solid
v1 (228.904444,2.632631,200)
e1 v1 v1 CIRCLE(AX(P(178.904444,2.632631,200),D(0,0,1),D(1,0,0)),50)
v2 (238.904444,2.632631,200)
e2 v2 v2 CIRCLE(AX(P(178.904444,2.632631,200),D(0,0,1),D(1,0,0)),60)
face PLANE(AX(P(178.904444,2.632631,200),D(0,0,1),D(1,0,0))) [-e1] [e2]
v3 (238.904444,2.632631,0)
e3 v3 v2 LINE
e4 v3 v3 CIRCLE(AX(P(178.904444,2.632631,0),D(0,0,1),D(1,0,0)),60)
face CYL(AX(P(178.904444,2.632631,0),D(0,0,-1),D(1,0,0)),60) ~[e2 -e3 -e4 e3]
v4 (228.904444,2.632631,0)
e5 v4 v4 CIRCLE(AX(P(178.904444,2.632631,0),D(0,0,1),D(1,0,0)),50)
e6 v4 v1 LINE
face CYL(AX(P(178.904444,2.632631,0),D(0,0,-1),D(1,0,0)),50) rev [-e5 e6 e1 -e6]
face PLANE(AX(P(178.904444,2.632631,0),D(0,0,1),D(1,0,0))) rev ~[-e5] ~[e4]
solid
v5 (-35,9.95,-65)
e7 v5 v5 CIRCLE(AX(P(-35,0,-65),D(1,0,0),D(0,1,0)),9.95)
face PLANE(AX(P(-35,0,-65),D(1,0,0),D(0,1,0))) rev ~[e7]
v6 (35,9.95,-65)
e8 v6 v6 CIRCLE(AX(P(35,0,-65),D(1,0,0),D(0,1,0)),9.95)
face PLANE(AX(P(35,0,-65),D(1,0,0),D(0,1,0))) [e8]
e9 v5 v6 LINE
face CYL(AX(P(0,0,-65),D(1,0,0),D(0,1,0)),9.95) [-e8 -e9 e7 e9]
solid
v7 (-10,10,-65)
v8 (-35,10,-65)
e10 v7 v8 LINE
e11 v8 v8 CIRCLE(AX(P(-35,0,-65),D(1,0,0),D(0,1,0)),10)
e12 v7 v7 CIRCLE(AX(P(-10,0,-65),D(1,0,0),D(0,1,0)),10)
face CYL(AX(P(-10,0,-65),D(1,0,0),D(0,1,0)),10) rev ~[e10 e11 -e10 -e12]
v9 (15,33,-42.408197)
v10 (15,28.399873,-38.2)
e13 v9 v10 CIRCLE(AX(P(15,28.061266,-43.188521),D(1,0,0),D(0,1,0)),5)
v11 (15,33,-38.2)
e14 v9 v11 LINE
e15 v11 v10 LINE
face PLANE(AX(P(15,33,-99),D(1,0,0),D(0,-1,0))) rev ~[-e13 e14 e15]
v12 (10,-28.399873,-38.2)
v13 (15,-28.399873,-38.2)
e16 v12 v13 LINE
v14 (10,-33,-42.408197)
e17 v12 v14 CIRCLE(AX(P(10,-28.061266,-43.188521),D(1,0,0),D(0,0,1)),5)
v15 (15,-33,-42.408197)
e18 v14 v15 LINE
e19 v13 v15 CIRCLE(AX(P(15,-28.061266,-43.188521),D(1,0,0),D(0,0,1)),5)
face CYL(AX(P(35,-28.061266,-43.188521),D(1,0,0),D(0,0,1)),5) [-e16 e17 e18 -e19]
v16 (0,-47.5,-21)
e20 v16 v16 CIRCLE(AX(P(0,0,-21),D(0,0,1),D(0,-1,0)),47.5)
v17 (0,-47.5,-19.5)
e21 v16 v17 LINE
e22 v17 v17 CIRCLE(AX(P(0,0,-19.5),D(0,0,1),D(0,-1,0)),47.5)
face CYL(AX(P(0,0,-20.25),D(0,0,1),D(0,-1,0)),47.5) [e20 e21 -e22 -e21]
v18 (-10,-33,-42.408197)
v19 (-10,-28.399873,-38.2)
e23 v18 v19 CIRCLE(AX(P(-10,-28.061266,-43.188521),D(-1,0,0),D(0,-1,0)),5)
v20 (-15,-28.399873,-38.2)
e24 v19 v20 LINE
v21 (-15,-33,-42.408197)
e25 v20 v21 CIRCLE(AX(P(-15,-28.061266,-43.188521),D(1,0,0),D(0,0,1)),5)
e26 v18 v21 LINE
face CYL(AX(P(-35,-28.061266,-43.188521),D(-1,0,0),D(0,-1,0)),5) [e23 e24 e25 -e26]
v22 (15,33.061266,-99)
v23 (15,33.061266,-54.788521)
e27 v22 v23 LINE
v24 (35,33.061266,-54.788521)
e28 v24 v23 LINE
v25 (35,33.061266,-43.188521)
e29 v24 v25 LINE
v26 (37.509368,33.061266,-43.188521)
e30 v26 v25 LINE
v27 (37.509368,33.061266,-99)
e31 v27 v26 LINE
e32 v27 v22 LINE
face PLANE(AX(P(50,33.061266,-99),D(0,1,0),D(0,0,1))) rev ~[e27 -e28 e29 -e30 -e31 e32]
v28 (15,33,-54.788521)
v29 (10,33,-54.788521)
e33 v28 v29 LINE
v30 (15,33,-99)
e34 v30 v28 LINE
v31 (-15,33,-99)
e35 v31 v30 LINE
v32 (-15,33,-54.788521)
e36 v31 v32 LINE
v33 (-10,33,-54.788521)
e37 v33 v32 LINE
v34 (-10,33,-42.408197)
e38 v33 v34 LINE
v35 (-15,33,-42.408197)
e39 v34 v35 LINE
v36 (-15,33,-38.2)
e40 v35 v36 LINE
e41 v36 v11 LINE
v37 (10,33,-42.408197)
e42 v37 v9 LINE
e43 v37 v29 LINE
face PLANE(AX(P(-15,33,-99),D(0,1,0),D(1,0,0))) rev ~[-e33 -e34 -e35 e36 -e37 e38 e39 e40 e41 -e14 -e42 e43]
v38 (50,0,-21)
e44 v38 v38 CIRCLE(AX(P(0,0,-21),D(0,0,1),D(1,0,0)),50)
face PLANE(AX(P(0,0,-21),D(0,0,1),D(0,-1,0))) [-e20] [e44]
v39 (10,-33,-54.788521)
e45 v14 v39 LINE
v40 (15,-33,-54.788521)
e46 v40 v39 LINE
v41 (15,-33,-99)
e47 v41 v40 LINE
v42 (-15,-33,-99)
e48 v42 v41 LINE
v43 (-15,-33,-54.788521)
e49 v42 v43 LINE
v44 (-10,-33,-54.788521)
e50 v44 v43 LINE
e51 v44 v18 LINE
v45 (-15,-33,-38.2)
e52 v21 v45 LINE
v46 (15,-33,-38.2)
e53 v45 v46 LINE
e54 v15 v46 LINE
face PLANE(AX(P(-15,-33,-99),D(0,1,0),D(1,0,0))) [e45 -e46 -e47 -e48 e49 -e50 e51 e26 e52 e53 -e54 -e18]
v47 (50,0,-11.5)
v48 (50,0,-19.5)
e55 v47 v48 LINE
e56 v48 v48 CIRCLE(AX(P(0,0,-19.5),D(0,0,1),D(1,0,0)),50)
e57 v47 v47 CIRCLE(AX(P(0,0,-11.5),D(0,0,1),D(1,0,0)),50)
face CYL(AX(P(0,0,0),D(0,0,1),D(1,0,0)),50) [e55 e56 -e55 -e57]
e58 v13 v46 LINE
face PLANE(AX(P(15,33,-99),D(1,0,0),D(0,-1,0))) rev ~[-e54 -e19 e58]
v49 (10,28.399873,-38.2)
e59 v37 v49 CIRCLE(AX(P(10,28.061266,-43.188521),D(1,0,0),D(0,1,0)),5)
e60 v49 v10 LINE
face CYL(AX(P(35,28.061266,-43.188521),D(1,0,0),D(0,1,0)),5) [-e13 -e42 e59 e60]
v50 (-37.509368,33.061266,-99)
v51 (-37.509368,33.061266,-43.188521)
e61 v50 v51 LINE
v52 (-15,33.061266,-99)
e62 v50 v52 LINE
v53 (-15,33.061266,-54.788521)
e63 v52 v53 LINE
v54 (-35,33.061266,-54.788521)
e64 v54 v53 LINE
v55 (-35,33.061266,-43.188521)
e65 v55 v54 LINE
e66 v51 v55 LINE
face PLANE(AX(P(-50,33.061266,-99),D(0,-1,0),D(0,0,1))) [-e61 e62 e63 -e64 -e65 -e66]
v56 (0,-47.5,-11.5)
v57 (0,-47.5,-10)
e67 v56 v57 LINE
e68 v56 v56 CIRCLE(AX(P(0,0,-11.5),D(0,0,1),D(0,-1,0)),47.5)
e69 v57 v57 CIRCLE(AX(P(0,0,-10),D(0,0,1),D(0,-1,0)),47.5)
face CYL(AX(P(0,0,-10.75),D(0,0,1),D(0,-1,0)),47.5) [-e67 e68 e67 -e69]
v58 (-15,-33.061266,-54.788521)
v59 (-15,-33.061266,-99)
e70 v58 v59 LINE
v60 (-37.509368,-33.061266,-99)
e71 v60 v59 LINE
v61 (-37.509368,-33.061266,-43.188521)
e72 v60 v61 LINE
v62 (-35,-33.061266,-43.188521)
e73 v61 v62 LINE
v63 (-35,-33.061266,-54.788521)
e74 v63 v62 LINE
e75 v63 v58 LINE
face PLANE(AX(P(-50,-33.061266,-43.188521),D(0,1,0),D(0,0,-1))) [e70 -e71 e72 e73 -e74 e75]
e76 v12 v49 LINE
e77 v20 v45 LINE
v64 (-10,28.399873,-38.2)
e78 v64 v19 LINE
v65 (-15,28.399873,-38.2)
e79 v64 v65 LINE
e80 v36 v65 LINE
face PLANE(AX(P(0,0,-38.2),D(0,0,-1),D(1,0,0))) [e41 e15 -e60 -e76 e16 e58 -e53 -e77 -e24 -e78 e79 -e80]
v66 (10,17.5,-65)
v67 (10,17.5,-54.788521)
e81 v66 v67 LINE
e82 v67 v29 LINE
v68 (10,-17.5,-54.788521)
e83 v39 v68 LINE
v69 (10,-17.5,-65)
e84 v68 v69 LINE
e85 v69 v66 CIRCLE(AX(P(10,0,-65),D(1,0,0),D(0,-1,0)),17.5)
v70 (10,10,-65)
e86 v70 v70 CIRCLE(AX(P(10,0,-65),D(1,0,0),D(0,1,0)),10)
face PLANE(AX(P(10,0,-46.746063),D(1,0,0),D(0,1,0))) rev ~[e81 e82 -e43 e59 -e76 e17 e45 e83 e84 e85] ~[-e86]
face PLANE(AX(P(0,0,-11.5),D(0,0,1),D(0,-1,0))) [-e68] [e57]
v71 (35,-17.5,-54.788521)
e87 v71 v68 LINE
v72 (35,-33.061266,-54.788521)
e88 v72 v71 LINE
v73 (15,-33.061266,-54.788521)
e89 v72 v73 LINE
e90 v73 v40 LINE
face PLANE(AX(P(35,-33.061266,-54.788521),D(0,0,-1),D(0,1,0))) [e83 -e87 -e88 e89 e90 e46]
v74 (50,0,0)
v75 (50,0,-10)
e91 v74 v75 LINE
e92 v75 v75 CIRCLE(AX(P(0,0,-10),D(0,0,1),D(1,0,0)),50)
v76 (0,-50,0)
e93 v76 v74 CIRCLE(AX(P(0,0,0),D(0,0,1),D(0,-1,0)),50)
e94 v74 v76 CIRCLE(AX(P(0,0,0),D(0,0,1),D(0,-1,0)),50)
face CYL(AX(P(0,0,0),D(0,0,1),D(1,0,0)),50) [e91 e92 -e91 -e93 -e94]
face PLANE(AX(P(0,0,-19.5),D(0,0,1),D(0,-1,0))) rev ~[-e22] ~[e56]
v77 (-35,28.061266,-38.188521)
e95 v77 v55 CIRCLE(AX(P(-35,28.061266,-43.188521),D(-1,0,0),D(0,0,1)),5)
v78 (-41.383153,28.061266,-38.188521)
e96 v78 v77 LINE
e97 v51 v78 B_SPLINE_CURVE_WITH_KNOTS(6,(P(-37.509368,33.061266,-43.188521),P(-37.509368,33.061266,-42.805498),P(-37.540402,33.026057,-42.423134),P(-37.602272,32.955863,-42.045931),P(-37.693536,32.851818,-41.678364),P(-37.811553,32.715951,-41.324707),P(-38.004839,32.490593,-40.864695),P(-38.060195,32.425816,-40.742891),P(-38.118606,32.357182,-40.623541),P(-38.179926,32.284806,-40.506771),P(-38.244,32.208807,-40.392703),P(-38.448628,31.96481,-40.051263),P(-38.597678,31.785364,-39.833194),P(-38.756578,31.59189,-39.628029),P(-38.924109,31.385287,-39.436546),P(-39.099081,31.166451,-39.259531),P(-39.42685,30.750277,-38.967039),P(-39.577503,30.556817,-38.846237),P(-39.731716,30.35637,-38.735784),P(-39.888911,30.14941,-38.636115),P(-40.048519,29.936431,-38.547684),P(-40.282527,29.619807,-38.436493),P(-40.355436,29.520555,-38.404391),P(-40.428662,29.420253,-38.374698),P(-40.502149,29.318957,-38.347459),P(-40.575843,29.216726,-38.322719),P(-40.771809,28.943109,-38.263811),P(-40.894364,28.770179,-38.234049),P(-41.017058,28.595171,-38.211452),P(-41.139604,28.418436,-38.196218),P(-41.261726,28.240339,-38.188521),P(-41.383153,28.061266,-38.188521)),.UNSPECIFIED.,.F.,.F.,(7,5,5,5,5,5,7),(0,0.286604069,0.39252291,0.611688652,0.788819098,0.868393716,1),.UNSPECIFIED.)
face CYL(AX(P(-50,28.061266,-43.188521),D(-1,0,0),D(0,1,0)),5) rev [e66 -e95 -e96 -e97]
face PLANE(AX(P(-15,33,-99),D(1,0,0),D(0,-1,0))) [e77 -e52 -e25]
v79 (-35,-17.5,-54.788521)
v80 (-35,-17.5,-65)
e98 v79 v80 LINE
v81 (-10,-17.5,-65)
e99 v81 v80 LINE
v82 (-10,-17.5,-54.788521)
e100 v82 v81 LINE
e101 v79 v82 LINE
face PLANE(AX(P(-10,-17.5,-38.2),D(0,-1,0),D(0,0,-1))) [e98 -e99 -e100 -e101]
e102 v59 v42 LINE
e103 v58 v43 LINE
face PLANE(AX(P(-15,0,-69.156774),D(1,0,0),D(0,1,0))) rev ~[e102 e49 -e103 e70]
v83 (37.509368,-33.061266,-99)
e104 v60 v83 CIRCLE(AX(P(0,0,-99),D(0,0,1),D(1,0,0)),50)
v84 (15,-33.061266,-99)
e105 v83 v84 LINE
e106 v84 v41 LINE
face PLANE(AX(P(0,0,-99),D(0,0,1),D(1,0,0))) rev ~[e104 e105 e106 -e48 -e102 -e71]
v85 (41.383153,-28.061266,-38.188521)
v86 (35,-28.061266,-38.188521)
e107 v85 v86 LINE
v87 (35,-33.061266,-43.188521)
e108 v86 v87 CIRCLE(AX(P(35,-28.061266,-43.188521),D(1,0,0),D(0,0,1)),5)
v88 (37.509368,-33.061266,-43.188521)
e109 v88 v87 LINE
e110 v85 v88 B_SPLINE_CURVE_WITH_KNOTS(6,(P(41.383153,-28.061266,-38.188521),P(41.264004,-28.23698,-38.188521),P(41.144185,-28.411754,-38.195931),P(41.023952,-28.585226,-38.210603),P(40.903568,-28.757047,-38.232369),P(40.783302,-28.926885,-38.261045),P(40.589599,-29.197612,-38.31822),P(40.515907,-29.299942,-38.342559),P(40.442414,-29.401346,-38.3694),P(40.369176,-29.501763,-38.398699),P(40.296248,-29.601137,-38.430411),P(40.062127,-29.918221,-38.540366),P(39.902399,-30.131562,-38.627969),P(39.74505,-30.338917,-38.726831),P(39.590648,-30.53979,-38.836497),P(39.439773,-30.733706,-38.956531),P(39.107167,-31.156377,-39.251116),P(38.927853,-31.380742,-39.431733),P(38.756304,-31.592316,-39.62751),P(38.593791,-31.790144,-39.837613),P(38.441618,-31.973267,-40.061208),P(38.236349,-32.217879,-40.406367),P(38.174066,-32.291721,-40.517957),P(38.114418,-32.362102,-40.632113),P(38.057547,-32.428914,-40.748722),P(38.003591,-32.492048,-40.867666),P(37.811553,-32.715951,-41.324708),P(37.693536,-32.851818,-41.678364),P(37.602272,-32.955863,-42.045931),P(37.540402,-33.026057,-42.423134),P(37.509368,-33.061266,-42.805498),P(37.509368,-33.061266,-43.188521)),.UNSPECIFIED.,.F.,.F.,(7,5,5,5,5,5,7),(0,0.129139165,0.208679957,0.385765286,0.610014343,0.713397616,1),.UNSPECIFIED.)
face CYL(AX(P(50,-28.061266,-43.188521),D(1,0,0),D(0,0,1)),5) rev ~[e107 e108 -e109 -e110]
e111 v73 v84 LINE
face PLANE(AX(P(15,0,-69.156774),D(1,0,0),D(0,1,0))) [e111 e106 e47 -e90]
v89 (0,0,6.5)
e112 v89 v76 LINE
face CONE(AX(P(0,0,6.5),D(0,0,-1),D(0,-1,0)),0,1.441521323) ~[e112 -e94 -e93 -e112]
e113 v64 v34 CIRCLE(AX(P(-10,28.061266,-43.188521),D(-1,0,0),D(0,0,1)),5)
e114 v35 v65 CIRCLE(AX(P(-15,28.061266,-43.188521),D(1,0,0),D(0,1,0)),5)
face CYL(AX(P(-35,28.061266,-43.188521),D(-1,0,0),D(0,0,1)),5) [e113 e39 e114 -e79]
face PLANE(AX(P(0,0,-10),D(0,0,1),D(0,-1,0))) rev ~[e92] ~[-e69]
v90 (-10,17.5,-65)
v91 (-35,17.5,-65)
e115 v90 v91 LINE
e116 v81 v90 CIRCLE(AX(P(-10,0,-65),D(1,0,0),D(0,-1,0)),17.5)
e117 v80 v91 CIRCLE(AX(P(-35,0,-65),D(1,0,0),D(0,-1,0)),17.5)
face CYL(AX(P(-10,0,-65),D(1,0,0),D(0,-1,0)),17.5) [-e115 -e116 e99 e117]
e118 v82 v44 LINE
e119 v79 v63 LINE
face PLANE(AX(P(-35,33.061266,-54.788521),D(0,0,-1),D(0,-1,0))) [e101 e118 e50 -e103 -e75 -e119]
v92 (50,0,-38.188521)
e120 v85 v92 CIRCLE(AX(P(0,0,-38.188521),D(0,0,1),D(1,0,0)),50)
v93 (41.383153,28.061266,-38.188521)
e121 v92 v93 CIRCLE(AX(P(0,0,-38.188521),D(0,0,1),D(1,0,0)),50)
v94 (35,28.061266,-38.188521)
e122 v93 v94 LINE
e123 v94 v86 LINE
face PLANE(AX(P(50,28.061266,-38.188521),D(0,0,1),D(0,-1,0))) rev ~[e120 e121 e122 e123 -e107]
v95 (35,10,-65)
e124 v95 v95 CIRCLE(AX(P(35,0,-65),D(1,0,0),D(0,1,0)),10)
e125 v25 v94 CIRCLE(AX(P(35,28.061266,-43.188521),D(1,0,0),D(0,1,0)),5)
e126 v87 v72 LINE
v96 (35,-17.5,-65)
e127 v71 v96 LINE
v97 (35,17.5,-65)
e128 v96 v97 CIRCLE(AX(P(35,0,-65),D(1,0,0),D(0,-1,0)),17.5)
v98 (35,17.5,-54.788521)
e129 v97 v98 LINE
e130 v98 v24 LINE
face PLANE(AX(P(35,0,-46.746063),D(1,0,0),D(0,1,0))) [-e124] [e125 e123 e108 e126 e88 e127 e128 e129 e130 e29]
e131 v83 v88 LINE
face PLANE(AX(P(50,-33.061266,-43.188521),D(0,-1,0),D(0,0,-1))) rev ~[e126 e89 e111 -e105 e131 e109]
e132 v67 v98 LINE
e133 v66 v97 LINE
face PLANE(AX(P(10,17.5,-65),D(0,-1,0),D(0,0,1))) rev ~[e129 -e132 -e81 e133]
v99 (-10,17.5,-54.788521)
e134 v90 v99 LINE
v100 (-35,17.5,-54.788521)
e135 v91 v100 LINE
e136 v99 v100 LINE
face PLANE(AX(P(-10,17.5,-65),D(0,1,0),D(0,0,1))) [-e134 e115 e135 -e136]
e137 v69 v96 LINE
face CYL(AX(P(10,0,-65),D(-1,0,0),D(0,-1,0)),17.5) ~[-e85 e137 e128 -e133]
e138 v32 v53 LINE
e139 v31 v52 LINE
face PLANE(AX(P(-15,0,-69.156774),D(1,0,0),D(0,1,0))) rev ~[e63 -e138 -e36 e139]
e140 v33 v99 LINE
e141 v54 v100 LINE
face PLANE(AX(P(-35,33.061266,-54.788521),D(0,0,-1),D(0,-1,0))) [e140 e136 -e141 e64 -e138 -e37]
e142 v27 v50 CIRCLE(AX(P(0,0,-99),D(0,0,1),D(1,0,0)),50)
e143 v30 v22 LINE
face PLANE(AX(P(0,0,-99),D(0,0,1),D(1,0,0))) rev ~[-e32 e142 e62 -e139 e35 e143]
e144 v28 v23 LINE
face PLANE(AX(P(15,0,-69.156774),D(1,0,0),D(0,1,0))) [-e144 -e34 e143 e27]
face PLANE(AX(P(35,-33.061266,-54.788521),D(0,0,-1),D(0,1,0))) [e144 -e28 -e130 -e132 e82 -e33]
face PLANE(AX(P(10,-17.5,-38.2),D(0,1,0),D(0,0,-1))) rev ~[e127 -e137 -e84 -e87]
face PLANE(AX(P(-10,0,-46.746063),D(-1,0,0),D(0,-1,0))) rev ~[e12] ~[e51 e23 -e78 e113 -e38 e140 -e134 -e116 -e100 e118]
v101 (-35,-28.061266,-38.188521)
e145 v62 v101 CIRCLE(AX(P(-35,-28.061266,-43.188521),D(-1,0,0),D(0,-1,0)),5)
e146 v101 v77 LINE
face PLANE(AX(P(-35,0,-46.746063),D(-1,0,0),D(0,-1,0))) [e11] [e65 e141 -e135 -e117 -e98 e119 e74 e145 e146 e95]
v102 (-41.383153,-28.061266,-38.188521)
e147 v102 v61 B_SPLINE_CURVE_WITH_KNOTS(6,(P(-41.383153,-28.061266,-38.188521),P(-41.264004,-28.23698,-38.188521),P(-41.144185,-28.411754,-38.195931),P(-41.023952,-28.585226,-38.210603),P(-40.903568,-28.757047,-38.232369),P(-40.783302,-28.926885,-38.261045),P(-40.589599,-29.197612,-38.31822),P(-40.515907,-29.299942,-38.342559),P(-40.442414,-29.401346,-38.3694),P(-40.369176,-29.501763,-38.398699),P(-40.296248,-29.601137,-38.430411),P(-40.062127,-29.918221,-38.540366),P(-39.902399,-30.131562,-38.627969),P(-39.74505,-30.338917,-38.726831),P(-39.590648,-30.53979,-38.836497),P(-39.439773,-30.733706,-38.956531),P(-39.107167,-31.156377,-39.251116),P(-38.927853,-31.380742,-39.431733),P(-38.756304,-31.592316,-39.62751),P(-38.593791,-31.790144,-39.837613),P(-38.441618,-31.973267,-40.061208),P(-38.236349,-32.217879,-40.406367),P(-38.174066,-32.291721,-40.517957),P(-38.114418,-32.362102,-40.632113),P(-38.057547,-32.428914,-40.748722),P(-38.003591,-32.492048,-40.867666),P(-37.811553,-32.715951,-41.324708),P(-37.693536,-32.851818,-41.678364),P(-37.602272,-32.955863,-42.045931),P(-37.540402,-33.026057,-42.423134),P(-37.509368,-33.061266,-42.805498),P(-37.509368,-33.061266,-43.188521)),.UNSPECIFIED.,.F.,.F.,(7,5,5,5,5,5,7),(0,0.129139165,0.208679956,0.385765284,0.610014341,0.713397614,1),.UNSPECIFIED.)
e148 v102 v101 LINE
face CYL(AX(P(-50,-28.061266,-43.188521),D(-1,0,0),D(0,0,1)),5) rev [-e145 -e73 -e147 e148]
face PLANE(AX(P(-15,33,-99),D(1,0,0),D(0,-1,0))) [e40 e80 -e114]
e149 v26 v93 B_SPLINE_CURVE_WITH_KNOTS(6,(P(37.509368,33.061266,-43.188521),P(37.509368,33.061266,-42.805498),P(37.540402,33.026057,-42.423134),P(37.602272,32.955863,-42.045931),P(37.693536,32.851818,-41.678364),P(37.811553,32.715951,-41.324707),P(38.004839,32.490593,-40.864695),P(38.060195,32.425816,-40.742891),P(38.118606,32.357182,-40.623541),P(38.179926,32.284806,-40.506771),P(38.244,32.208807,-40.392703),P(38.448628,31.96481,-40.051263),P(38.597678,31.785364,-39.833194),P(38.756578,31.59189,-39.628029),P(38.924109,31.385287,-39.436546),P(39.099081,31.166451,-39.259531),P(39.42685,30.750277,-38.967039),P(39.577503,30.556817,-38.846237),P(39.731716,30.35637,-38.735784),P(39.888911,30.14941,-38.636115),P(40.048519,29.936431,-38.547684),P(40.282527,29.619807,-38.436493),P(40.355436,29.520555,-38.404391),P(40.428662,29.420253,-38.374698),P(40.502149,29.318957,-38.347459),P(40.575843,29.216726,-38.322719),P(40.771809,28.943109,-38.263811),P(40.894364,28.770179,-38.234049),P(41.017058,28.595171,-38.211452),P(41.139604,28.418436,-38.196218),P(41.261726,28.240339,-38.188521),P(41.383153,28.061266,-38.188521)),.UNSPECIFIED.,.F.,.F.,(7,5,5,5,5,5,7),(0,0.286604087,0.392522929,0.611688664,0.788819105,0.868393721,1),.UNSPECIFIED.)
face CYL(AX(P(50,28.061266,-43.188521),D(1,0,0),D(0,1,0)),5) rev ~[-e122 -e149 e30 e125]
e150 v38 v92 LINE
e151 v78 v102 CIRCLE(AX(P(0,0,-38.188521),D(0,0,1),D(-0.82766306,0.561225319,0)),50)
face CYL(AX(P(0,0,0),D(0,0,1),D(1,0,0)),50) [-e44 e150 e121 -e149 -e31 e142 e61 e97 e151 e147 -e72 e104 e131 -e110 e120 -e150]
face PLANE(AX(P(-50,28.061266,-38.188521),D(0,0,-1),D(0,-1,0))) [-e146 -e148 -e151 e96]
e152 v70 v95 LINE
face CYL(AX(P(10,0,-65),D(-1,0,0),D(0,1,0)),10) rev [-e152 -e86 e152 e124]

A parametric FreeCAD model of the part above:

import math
import FreeCAD as App
import Part
import Sketcher
from FreeCAD import Vector
Q = App.Units.Quantity


def add_polygon(sketch, points):
    """Adds a closed chain of lines whose ends are joined by coincident constraints."""
    first, n = sketch.GeometryCount, len(points)
    for a, b in zip(points, points[1:] + points[:1]):
        sketch.addGeometry(Part.LineSegment(App.Vector(*a, 0), App.Vector(*b, 0)), False)
    for i in range(n):
        sketch.addConstraint(Sketcher.Constraint("Coincident", first + i, 2, first + (i + 1) % n, 1))

doc = App.newDocument("Part")
params = doc.addObject("Spreadsheet::Sheet", "Params")
for row, (alias, value) in enumerate([
    ("sketch1_width", "50 mm"),
    ("sketch1_height", "6.5 mm"),
    ("revolution_angle", "360 deg"),
    ("sketch2_width", "30 mm"),
    ("sketch2_height", "66 mm"),
    ("pocket1_length", "60 mm"),
    ("sketch3_diameter", "100 mm"),
    ("pad1_length", "99 mm"),
    ("sketch4_width", "2.5 mm"),
    ("sketch4_height", "1.5 mm"),
    ("groove_angle", "360 deg"),
    ("sketch5_radius", "5 mm"),
    ("pocket2_length", "35 mm"),
    ("sketch6_radius", "5 mm"),
    ("pocket3_length", "35 mm"),
    ("sketch7_diameter", "20 mm"),
    ("pad2_length", "39.6 mm"),
    ("sketch8_width", "30 mm"),
    ("sketch8_height", "66 mm"),
    ("pocket4_length", "60.8 mm"),
    ("sketch9_diameter", "20 mm"),
    ("sketch9_radius", "17.5 mm"),
    ("sketch9_height", "26.8 mm"),
    ("pad3_length", "25 mm"),
    ("sketch10_diameter", "20 mm"),
    ("sketch10_radius", "17.5 mm"),
    ("sketch10_height", "26.8 mm"),
    ("pad4_length", "25 mm"),
    ("sketch11_radius", "5 mm"),
    ("sketch11_height", "11.6 mm"),
    ("pad5_length", "25 mm"),
    ("sketch12_radius", "5 mm"),
    ("sketch12_height", "11.6 mm"),
    ("pad6_length", "25 mm"),
    ("sketch13_diameter", "19.9 mm"),
    ("pad7_length", "70 mm"),
    ("sketch14_diameter", "120 mm"),
    ("pad8_length", "250 mm"),
    ("sketch15_diameter", "100 mm"),
    ("pocket5_length", "250 mm"),
    ("sketch16_diameter", "120 mm"),
    ("sketch16_diameter2", "100 mm"),
    ("pad9_length", "200 mm"),
], start=1):
    params.set(f"A{row}", alias)
    params.set(f"B{row}", "=" + value)
    params.setAlias(f"B{row}", alias)

body = doc.addObject("PartDesign::Body", "Body")

sketch1 = doc.addObject("Sketcher::SketchObject", "Sketch")
body.addObject(sketch1)
sketch1.AttachmentSupport = (doc.YZ_Plane, [""])
sketch1.MapMode = "FlatFace"
add_polygon(sketch1, [(-50, 0), (0, 0), (0, 6.5)])
sketch1.addConstraint([
    Sketcher.Constraint("Horizontal", 0),
    Sketcher.Constraint("Vertical", 1),
    Sketcher.Constraint("Coincident", 0, 2, -1, 1),
    Sketcher.Constraint("DistanceX", 0, 1, 0, 2, Q("50 mm")),
    Sketcher.Constraint("DistanceY", 1, 1, 1, 2, Q("6.5 mm")),
])
sketch1.setExpression("Constraints[6]", "Params.sketch1_width")
sketch1.setExpression("Constraints[7]", "Params.sketch1_height")
revolution = doc.addObject("PartDesign::Revolution", "Revolution")
body.addObject(revolution)
revolution.Profile = sketch1
revolution.ReferenceAxis = (sketch1, ["V_Axis"])
revolution.setExpression("Angle", "Params.revolution_angle")

sketch2 = doc.addObject("Sketcher::SketchObject", "Sketch001")
body.addObject(sketch2)
sketch2.AttachmentSupport = (doc.XY_Plane, [""])
sketch2.MapMode = "FlatFace"
sketch2.AttachmentOffset = App.Placement(Vector(0, 0, -99), App.Rotation())
add_polygon(sketch2, [(-15, -33), (-15, 33), (15, 33), (15, -33)])
sketch2.addConstraint([
    Sketcher.Constraint("Vertical", 0),
    Sketcher.Constraint("Horizontal", 1),
    Sketcher.Constraint("Vertical", 2),
    Sketcher.Constraint("Horizontal", 3),
    Sketcher.Constraint("Symmetric", 0, 2, 2, 2, -1, 1),
    Sketcher.Constraint("DistanceX", 1, 1, 1, 2, Q("30 mm")),
    Sketcher.Constraint("DistanceY", 0, 1, 0, 2, Q("66 mm")),
])
sketch2.setExpression("Constraints[9]", "Params.sketch2_width")
sketch2.setExpression("Constraints[10]", "Params.sketch2_height")
pocket1 = doc.addObject("PartDesign::Pocket", "Pocket")
body.addObject(pocket1)
pocket1.Profile = sketch2
pocket1.setExpression("Length", "Params.pocket1_length")
pocket1.Reversed = True
body2 = doc.addObject("PartDesign::Body", "Body001")

sketch3 = doc.addObject("Sketcher::SketchObject", "Sketch002")
body2.addObject(sketch3)
sketch3.AttachmentSupport = (doc.getObject("XY_Plane001"), [""])
sketch3.MapMode = "FlatFace"
sketch3.addGeometry(Part.Circle(Vector(0, 0, 0), Vector(0, 0, 1), 50), False)
sketch3.addConstraint([
    Sketcher.Constraint("Coincident", 0, 3, -1, 1),
    Sketcher.Constraint("Diameter", 0, Q("100 mm")),
])
sketch3.setExpression("Constraints[1]", "Params.sketch3_diameter")
pad1 = doc.addObject("PartDesign::Pad", "Pad")
body2.addObject(pad1)
pad1.Profile = sketch3
pad1.setExpression("Length", "Params.pad1_length")
pad1.Reversed = True

sketch4 = doc.addObject("Sketcher::SketchObject", "Sketch003")
body2.addObject(sketch4)
sketch4.AttachmentSupport = (doc.getObject("YZ_Plane001"), [""])
sketch4.MapMode = "FlatFace"
add_polygon(sketch4, [(-50, -10), (-50, -11.5), (-47.5, -11.5), (-47.5, -10)])
add_polygon(sketch4, [(-50, -19.5), (-50, -21), (-47.5, -21), (-47.5, -19.5)])
sketch4.addConstraint([
    Sketcher.Constraint("Vertical", 0),
    Sketcher.Constraint("Horizontal", 1),
    Sketcher.Constraint("Vertical", 2),
    Sketcher.Constraint("Horizontal", 3),
    Sketcher.Constraint("Vertical", 4),
    Sketcher.Constraint("Horizontal", 5),
    Sketcher.Constraint("Vertical", 6),
    Sketcher.Constraint("Horizontal", 7),
    Sketcher.Constraint("Vertical", 3, 2, 4, 2),
    Sketcher.Constraint("Vertical", 2, 2, 5, 2),
    Sketcher.Constraint("Equal", 2, 4),
    Sketcher.Constraint("DistanceX", 1, 1, 1, 2, Q("2.5 mm")),
    Sketcher.Constraint("DistanceY", 0, 2, 0, 1, Q("1.5 mm")),
    Sketcher.Constraint("DistanceX", 0, 2, -1, 1, Q("50 mm")),
    Sketcher.Constraint("DistanceY", 2, 2, -1, 1, Q("10 mm")),
    Sketcher.Constraint("DistanceY", 4, 2, -1, 1, Q("21 mm")),
])
sketch4.setExpression("Constraints[19]", "Params.sketch4_width")
sketch4.setExpression("Constraints[20]", "Params.sketch4_height")
groove = doc.addObject("PartDesign::Groove", "Groove")
body2.addObject(groove)
groove.Profile = sketch4
groove.ReferenceAxis = (sketch4, ["V_Axis"])
groove.setExpression("Angle", "Params.groove_angle")

sketch5 = doc.addObject("Sketcher::SketchObject", "Sketch004")
body2.addObject(sketch5)
sketch5.AttachmentSupport = (doc.getObject("YZ_Plane001"), [""])
sketch5.MapMode = "FlatFace"
sketch5.AttachmentOffset = App.Placement(Vector(0, 0, 50), App.Rotation())
sketch5.addGeometry([
    Part.LineSegment(Vector(-33.061266, -43.188521, 0), Vector(-33.061266, -99, 0)),
    Part.LineSegment(Vector(-33.061266, -99, 0), Vector(33.061266, -99, 0)),
    Part.LineSegment(Vector(33.061266, -99, 0), Vector(33.061266, -43.188521, 0)),
    Part.ArcOfCircle(Part.Circle(Vector(28.061266, -43.188521, 0), Vector(0, 0, 1), 5), math.radians(0), math.radians(90)),
    Part.LineSegment(Vector(28.061266, -38.188521, 0), Vector(-28.061266, -38.188521, 0)),
    Part.ArcOfCircle(Part.Circle(Vector(-28.061266, -43.188521, 0), Vector(0, 0, 1), 5), math.radians(90), math.radians(180)),
], False)
sketch5.addConstraint([
    Sketcher.Constraint("Coincident", 0, 2, 1, 1),
    Sketcher.Constraint("Coincident", 1, 2, 2, 1),
    Sketcher.Constraint("Tangent", 2, 2, 3, 1),
    Sketcher.Constraint("Tangent", 3, 2, 4, 1),
    Sketcher.Constraint("Tangent", 4, 2, 5, 1),
    Sketcher.Constraint("Tangent", 5, 2, 0, 1),
    Sketcher.Constraint("Vertical", 0),
    Sketcher.Constraint("Horizontal", 1),
    Sketcher.Constraint("Vertical", 2),
    Sketcher.Constraint("Horizontal", 4),
    Sketcher.Constraint("Equal", 3, 5),
    Sketcher.Constraint("Radius", 3, Q("5 mm")),
    Sketcher.Constraint("DistanceY", 0, 2, -1, 1, Q("99 mm")),
    Sketcher.Constraint("DistanceX", 1, 1, 1, 2, Q("66.122532 mm")),
    Sketcher.Constraint("DistanceY", 0, 2, 0, 1, Q("55.811479 mm")),
    Sketcher.Constraint("DistanceX", -1, 1, 3, 3, Q("28.061266 mm")),
])
sketch5.setExpression("Constraints[11]", "Params.sketch5_radius")
pocket2 = doc.addObject("PartDesign::Pocket", "Pocket001")
body2.addObject(pocket2)
pocket2.Profile = sketch5
pocket2.setExpression("Length", "Params.pocket2_length")

sketch6 = doc.addObject("Sketcher::SketchObject", "Sketch005")
body2.addObject(sketch6)
sketch6.AttachmentSupport = (doc.getObject("YZ_Plane001"), [""])
sketch6.MapMode = "FlatFace"
sketch6.AttachmentOffset = App.Placement(Vector(0, 0, -50), App.Rotation())
sketch6.addGeometry([
    Part.LineSegment(Vector(28.061266, -38.188521, 0), Vector(-28.061266, -38.188521, 0)),
    Part.ArcOfCircle(Part.Circle(Vector(-28.061266, -43.188521, 0), Vector(0, 0, 1), 5), math.radians(90), math.radians(180)),
    Part.LineSegment(Vector(-33.061266, -43.188521, 0), Vector(-33.061266, -99, 0)),
    Part.LineSegment(Vector(-33.061266, -99, 0), Vector(33.061266, -99, 0)),
    Part.LineSegment(Vector(33.061266, -99, 0), Vector(33.061266, -43.188521, 0)),
    Part.ArcOfCircle(Part.Circle(Vector(28.061266, -43.188521, 0), Vector(0, 0, 1), 5), math.radians(0), math.radians(90)),
], False)
sketch6.addConstraint([
    Sketcher.Constraint("Tangent", 0, 2, 1, 1),
    Sketcher.Constraint("Tangent", 1, 2, 2, 1),
    Sketcher.Constraint("Coincident", 2, 2, 3, 1),
    Sketcher.Constraint("Coincident", 3, 2, 4, 1),
    Sketcher.Constraint("Tangent", 4, 2, 5, 1),
    Sketcher.Constraint("Tangent", 5, 2, 0, 1),
    Sketcher.Constraint("Horizontal", 0),
    Sketcher.Constraint("Vertical", 2),
    Sketcher.Constraint("Horizontal", 3),
    Sketcher.Constraint("Vertical", 4),
    Sketcher.Constraint("Equal", 1, 5),
    Sketcher.Constraint("Radius", 1, Q("5 mm")),
    Sketcher.Constraint("DistanceY", 2, 2, -1, 1, Q("99 mm")),
    Sketcher.Constraint("DistanceX", 0, 2, 0, 1, Q("56.122532 mm")),
    Sketcher.Constraint("DistanceY", 2, 2, 2, 1, Q("55.811479 mm")),
    Sketcher.Constraint("DistanceX", 1, 3, -1, 1, Q("28.061266 mm")),
])
sketch6.setExpression("Constraints[11]", "Params.sketch6_radius")
pocket3 = doc.addObject("PartDesign::Pocket", "Pocket002")
body2.addObject(pocket3)
pocket3.Profile = sketch6
pocket3.setExpression("Length", "Params.pocket3_length")
pocket3.Reversed = True
body3 = doc.addObject("PartDesign::Body", "Body002")

sketch7 = doc.addObject("Sketcher::SketchObject", "Sketch006")
body3.addObject(sketch7)
sketch7.AttachmentSupport = (doc.getObject("YZ_Plane002"), [""])
sketch7.MapMode = "FlatFace"
sketch7.addGeometry(Part.Circle(Vector(0, -57.383874, 0), Vector(0, 0, 1), 10), False)
sketch7.addConstraint([
    Sketcher.Constraint("PointOnObject", 0, 3, -2),
    Sketcher.Constraint("Diameter", 0, Q("20 mm")),
    Sketcher.Constraint("DistanceY", 0, 3, -1, 1, Q("57.383874 mm")),
])
sketch7.setExpression("Constraints[1]", "Params.sketch7_diameter")
pad2 = doc.addObject("PartDesign::Pad", "Pad001")
body3.addObject(pad2)
pad2.Profile = sketch7
pad2.setExpression("Length", "Params.pad2_length")
pad2.Midplane = True
doc.recompute()

boolean = doc.addObject("PartDesign::Boolean", "Boolean")
body2.addObject(boolean)
boolean.Type = "Cut"
boolean.addObjects([body3])

sketch8 = doc.addObject("Sketcher::SketchObject", "Sketch007")
body2.addObject(sketch8)
sketch8.AttachmentSupport = (doc.getObject("XY_Plane001"), [""])
sketch8.MapMode = "FlatFace"
sketch8.AttachmentOffset = App.Placement(Vector(0, 0, -99), App.Rotation())
add_polygon(sketch8, [(-15, -33), (-15, 33), (15, 33), (15, -33)])
sketch8.addConstraint([
    Sketcher.Constraint("Vertical", 0),
    Sketcher.Constraint("Horizontal", 1),
    Sketcher.Constraint("Vertical", 2),
    Sketcher.Constraint("Horizontal", 3),
    Sketcher.Constraint("Symmetric", 0, 2, 2, 2, -1, 1),
    Sketcher.Constraint("DistanceX", 1, 1, 1, 2, Q("30 mm")),
    Sketcher.Constraint("DistanceY", 0, 1, 0, 2, Q("66 mm")),
])
sketch8.setExpression("Constraints[9]", "Params.sketch8_width")
sketch8.setExpression("Constraints[10]", "Params.sketch8_height")
pocket4 = doc.addObject("PartDesign::Pocket", "Pocket003")
body2.addObject(pocket4)
pocket4.Profile = sketch8
pocket4.setExpression("Length", "Params.pocket4_length")
pocket4.Reversed = True

sketch9 = doc.addObject("Sketcher::SketchObject", "Sketch008")
body2.addObject(sketch9)
sketch9.AttachmentSupport = (doc.getObject("YZ_Plane001"), [""])
sketch9.MapMode = "FlatFace"
sketch9.AttachmentOffset = App.Placement(Vector(0, 0, 10), App.Rotation())
sketch9.addGeometry([
    Part.LineSegment(Vector(-17.5, -38.2, 0), Vector(-17.5, -65, 0)),
    Part.ArcOfCircle(Part.Circle(Vector(0, -65, 0), Vector(0, 0, 1), 17.5), math.radians(180), math.radians(360)),
    Part.LineSegment(Vector(17.5, -65, 0), Vector(17.5, -38.2, 0)),
    Part.LineSegment(Vector(17.5, -38.2, 0), Vector(-17.5, -38.2, 0)),
    Part.Circle(Vector(0, -65, 0), Vector(0, 0, 1), 10),
], False)
sketch9.addConstraint([
    Sketcher.Constraint("Tangent", 0, 2, 1, 1),
    Sketcher.Constraint("Tangent", 1, 2, 2, 1),
    Sketcher.Constraint("Coincident", 2, 2, 3, 1),
    Sketcher.Constraint("Coincident", 3, 2, 0, 1),
    Sketcher.Constraint("Vertical", 0),
    Sketcher.Constraint("Vertical", 2),
    Sketcher.Constraint("Horizontal", 3),
    Sketcher.Constraint("Coincident", 4, 3, 1, 3),
    Sketcher.Constraint("PointOnObject", 1, 3, -2),
    Sketcher.Constraint("Diameter", 4, Q("20 mm")),
    Sketcher.Constraint("Radius", 1, Q("17.5 mm")),
    Sketcher.Constraint("DistanceY", 0, 2, 0, 1, Q("26.8 mm")),
    Sketcher.Constraint("DistanceY", 1, 3, -1, 1, Q("65 mm")),
])
sketch9.setExpression("Constraints[9]", "Params.sketch9_diameter")
sketch9.setExpression("Constraints[10]", "Params.sketch9_radius")
sketch9.setExpression("Constraints[11]", "Params.sketch9_height")
pad3 = doc.addObject("PartDesign::Pad", "Pad002")
body2.addObject(pad3)
pad3.Profile = sketch9
pad3.setExpression("Length", "Params.pad3_length")

sketch10 = doc.addObject("Sketcher::SketchObject", "Sketch009")
body2.addObject(sketch10)
sketch10.AttachmentSupport = (doc.getObject("YZ_Plane001"), [""])
sketch10.MapMode = "FlatFace"
sketch10.AttachmentOffset = App.Placement(Vector(0, 0, -10), App.Rotation())
sketch10.addGeometry([
    Part.LineSegment(Vector(-17.5, -38.2, 0), Vector(-17.5, -65, 0)),
    Part.ArcOfCircle(Part.Circle(Vector(0, -65, 0), Vector(0, 0, 1), 17.5), math.radians(180), math.radians(360)),
    Part.LineSegment(Vector(17.5, -65, 0), Vector(17.5, -38.2, 0)),
    Part.LineSegment(Vector(17.5, -38.2, 0), Vector(-17.5, -38.2, 0)),
    Part.Circle(Vector(0, -65, 0), Vector(0, 0, 1), 10),
], False)
sketch10.addConstraint([
    Sketcher.Constraint("Tangent", 0, 2, 1, 1),
    Sketcher.Constraint("Tangent", 1, 2, 2, 1),
    Sketcher.Constraint("Coincident", 2, 2, 3, 1),
    Sketcher.Constraint("Coincident", 3, 2, 0, 1),
    Sketcher.Constraint("Vertical", 0),
    Sketcher.Constraint("Vertical", 2),
    Sketcher.Constraint("Horizontal", 3),
    Sketcher.Constraint("Coincident", 4, 3, 1, 3),
    Sketcher.Constraint("PointOnObject", 1, 3, -2),
    Sketcher.Constraint("Diameter", 4, Q("20 mm")),
    Sketcher.Constraint("Radius", 1, Q("17.5 mm")),
    Sketcher.Constraint("DistanceY", 0, 2, 0, 1, Q("26.8 mm")),
    Sketcher.Constraint("DistanceY", 1, 3, -1, 1, Q("65 mm")),
])
sketch10.setExpression("Constraints[9]", "Params.sketch10_diameter")
sketch10.setExpression("Constraints[10]", "Params.sketch10_radius")
sketch10.setExpression("Constraints[11]", "Params.sketch10_height")
pad4 = doc.addObject("PartDesign::Pad", "Pad003")
body2.addObject(pad4)
pad4.Profile = sketch10
pad4.setExpression("Length", "Params.pad4_length")
pad4.Reversed = True

sketch11 = doc.addObject("Sketcher::SketchObject", "Sketch010")
body2.addObject(sketch11)
sketch11.AttachmentSupport = (doc.getObject("YZ_Plane001"), [""])
sketch11.MapMode = "FlatFace"
sketch11.AttachmentOffset = App.Placement(Vector(0, 0, -35), App.Rotation())
sketch11.addGeometry([
    Part.LineSegment(Vector(-28.061266, -38.188521, 0), Vector(28.061266, -38.188521, 0)),
    Part.ArcOfCircle(Part.Circle(Vector(28.061266, -43.188521, 0), Vector(0, 0, 1), 5), math.radians(0), math.radians(90)),
    Part.LineSegment(Vector(33.061266, -43.188521, 0), Vector(33.061266, -54.788521, 0)),
    Part.LineSegment(Vector(33.061266, -54.788521, 0), Vector(-33.061266, -54.788521, 0)),
    Part.LineSegment(Vector(-33.061266, -54.788521, 0), Vector(-33.061266, -43.188521, 0)),
    Part.ArcOfCircle(Part.Circle(Vector(-28.061266, -43.188521, 0), Vector(0, 0, 1), 5), math.radians(90), math.radians(180)),
], False)
sketch11.addConstraint([
    Sketcher.Constraint("Tangent", 0, 2, 1, 2),
    Sketcher.Constraint("Tangent", 1, 1, 2, 1),
    Sketcher.Constraint("Coincident", 2, 2, 3, 1),
    Sketcher.Constraint("Coincident", 3, 2, 4, 1),
    Sketcher.Constraint("Tangent", 4, 2, 5, 2),
    Sketcher.Constraint("Tangent", 5, 1, 0, 1),
    Sketcher.Constraint("Horizontal", 0),
    Sketcher.Constraint("Vertical", 2),
    Sketcher.Constraint("Horizontal", 3),
    Sketcher.Constraint("Vertical", 4),
    Sketcher.Constraint("Equal", 1, 5),
    Sketcher.Constraint("Radius", 1, Q("5 mm")),
    Sketcher.Constraint("DistanceY", 2, 2, 2, 1, Q("11.6 mm")),
    Sketcher.Constraint("DistanceX", 0, 1, 0, 2, Q("56.122532 mm")),
    Sketcher.Constraint("DistanceY", 1, 3, -1, 1, Q("43.188521 mm")),
    Sketcher.Constraint("DistanceX", -1, 1, 1, 3, Q("28.061266 mm")),
])
sketch11.setExpression("Constraints[11]", "Params.sketch11_radius")
sketch11.setExpression("Constraints[12]", "Params.sketch11_height")
pad5 = doc.addObject("PartDesign::Pad", "Pad004")
body2.addObject(pad5)
pad5.Profile = sketch11
pad5.setExpression("Length", "Params.pad5_length")
doc.recompute()

boolean2 = doc.addObject("PartDesign::Boolean", "Boolean001")
body.addObject(boolean2)
boolean2.Type = "Fuse"
boolean2.addObjects([body2])

sketch12 = doc.addObject("Sketcher::SketchObject", "Sketch011")
body.addObject(sketch12)
sketch12.AttachmentSupport = (doc.YZ_Plane, [""])
sketch12.MapMode = "FlatFace"
sketch12.AttachmentOffset = App.Placement(Vector(0, 0, 35), App.Rotation())
sketch12.addGeometry([
    Part.LineSegment(Vector(28.061266, -38.188521, 0), Vector(-28.061266, -38.188521, 0)),
    Part.ArcOfCircle(Part.Circle(Vector(-28.061266, -43.188521, 0), Vector(0, 0, 1), 5), math.radians(90), math.radians(180)),
    Part.LineSegment(Vector(-33.061266, -43.188521, 0), Vector(-33.061266, -54.788521, 0)),
    Part.LineSegment(Vector(-33.061266, -54.788521, 0), Vector(33.061266, -54.788521, 0)),
    Part.LineSegment(Vector(33.061266, -54.788521, 0), Vector(33.061266, -43.188521, 0)),
    Part.ArcOfCircle(Part.Circle(Vector(28.061266, -43.188521, 0), Vector(0, 0, 1), 5), math.radians(0), math.radians(90)),
], False)
sketch12.addConstraint([
    Sketcher.Constraint("Tangent", 0, 2, 1, 1),
    Sketcher.Constraint("Tangent", 1, 2, 2, 1),
    Sketcher.Constraint("Coincident", 2, 2, 3, 1),
    Sketcher.Constraint("Coincident", 3, 2, 4, 1),
    Sketcher.Constraint("Tangent", 4, 2, 5, 1),
    Sketcher.Constraint("Tangent", 5, 2, 0, 1),
    Sketcher.Constraint("Horizontal", 0),
    Sketcher.Constraint("Vertical", 2),
    Sketcher.Constraint("Horizontal", 3),
    Sketcher.Constraint("Vertical", 4),
    Sketcher.Constraint("Equal", 1, 5),
    Sketcher.Constraint("Radius", 1, Q("5 mm")),
    Sketcher.Constraint("DistanceY", 2, 2, 2, 1, Q("11.6 mm")),
    Sketcher.Constraint("DistanceX", 0, 2, 0, 1, Q("56.122532 mm")),
    Sketcher.Constraint("DistanceY", 1, 3, -1, 1, Q("43.188521 mm")),
    Sketcher.Constraint("DistanceX", 1, 3, -1, 1, Q("28.061266 mm")),
])
sketch12.setExpression("Constraints[11]", "Params.sketch12_radius")
sketch12.setExpression("Constraints[12]", "Params.sketch12_height")
pad6 = doc.addObject("PartDesign::Pad", "Pad005")
body.addObject(pad6)
pad6.Profile = sketch12
pad6.setExpression("Length", "Params.pad6_length")
pad6.Reversed = True
body4 = doc.addObject("PartDesign::Body", "Body003")

sketch13 = doc.addObject("Sketcher::SketchObject", "Sketch012")
body4.addObject(sketch13)
sketch13.AttachmentSupport = (doc.getObject("YZ_Plane003"), [""])
sketch13.MapMode = "FlatFace"
sketch13.addGeometry(Part.Circle(Vector(0, -65, 0), Vector(0, 0, 1), 9.95), False)
sketch13.addConstraint([
    Sketcher.Constraint("PointOnObject", 0, 3, -2),
    Sketcher.Constraint("Diameter", 0, Q("19.9 mm")),
    Sketcher.Constraint("DistanceY", 0, 3, -1, 1, Q("65 mm")),
])
sketch13.setExpression("Constraints[1]", "Params.sketch13_diameter")
pad7 = doc.addObject("PartDesign::Pad", "Pad006")
body4.addObject(pad7)
pad7.Profile = sketch13
pad7.setExpression("Length", "Params.pad7_length")
pad7.Midplane = True
body5 = doc.addObject("PartDesign::Body", "Body004")

sketch14 = doc.addObject("Sketcher::SketchObject", "Sketch013")
body5.addObject(sketch14)
sketch14.AttachmentSupport = (doc.getObject("XY_Plane004"), [""])
sketch14.MapMode = "FlatFace"
sketch14.addGeometry(Part.Circle(Vector(170.892075, -5.837573, 0), Vector(0, 0, 1), 60), False)
sketch14.addConstraint([
    Sketcher.Constraint("Diameter", 0, Q("120 mm")),
    Sketcher.Constraint("DistanceX", -1, 1, 0, 3, Q("170.892075 mm")),
    Sketcher.Constraint("DistanceY", 0, 3, -1, 1, Q("5.837573 mm")),
])
sketch14.setExpression("Constraints[0]", "Params.sketch14_diameter")
pad8 = doc.addObject("PartDesign::Pad", "Pad007")
body5.addObject(pad8)
pad8.Profile = sketch14
pad8.setExpression("Length", "Params.pad8_length")

sketch15 = doc.addObject("Sketcher::SketchObject", "Sketch014")
body5.addObject(sketch15)
sketch15.AttachmentSupport = (doc.getObject("XY_Plane004"), [""])
sketch15.MapMode = "FlatFace"
sketch15.AttachmentOffset = App.Placement(Vector(0, 0, 250), App.Rotation())
sketch15.addGeometry(Part.Circle(Vector(170.892075, -5.837573, 0), Vector(0, 0, 1), 50), False)
sketch15.addConstraint([
    Sketcher.Constraint("Diameter", 0, Q("100 mm")),
    Sketcher.Constraint("DistanceX", -1, 1, 0, 3, Q("170.892075 mm")),
    Sketcher.Constraint("DistanceY", 0, 3, -1, 1, Q("5.837573 mm")),
])
sketch15.setExpression("Constraints[0]", "Params.sketch15_diameter")
pocket5 = doc.addObject("PartDesign::Pocket", "Pocket004")
body5.addObject(pocket5)
pocket5.Profile = sketch15
pocket5.setExpression("Length", "Params.pocket5_length")
body6 = doc.addObject("PartDesign::Body", "Body005")

sketch16 = doc.addObject("Sketcher::SketchObject", "Sketch015")
body6.addObject(sketch16)
sketch16.AttachmentSupport = (doc.getObject("XY_Plane005"), [""])
sketch16.MapMode = "FlatFace"
sketch16.addGeometry([
    Part.Circle(Vector(178.904444, 2.632631, 0), Vector(0, 0, 1), 60),
    Part.Circle(Vector(178.904444, 2.632631, 0), Vector(0, 0, 1), 50),
], False)
sketch16.addConstraint([
    Sketcher.Constraint("Coincident", 1, 3, 0, 3),
    Sketcher.Constraint("Diameter", 0, Q("120 mm")),
    Sketcher.Constraint("Diameter", 1, Q("100 mm")),
    Sketcher.Constraint("DistanceY", -1, 1, 0, 3, Q("2.632631 mm")),
    Sketcher.Constraint("DistanceX", -1, 1, 0, 3, Q("178.904444 mm")),
])
sketch16.setExpression("Constraints[1]", "Params.sketch16_diameter")
sketch16.setExpression("Constraints[2]", "Params.sketch16_diameter2")
pad9 = doc.addObject("PartDesign::Pad", "Pad008")
body6.addObject(pad9)
pad9.Profile = sketch16
pad9.setExpression("Length", "Params.pad9_length")
body5.Visibility = False

doc.recompute()
